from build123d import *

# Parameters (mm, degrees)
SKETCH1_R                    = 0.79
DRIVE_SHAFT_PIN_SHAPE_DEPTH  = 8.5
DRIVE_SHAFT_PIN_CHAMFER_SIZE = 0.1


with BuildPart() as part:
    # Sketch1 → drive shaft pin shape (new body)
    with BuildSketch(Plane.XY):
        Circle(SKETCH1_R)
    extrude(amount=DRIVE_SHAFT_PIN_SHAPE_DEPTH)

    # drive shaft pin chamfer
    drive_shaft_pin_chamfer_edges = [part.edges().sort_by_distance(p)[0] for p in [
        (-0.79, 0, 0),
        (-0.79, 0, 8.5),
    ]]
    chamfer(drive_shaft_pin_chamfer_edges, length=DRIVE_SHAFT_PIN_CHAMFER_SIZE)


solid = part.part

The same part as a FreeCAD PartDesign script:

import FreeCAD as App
import Part
import Sketcher


def edges_at(feature, points):
    """Names of the edges that pass closest to the given points."""
    edges = feature.Shape.Edges
    near = lambda p: min(range(len(edges)), key=lambda i: edges[i].distToShape(Part.Vertex(*p))[0])
    return sorted({f"Edge{near(p) + 1}" for p in points})

doc = App.newDocument("Part")
body = doc.addObject("PartDesign::Body", "Body")

sketch1 = doc.addObject("Sketcher::SketchObject", "Sketch")
body.addObject(sketch1)
sketch1.AttachmentSupport = (doc.XY_Plane, [""])
sketch1.MapMode = "FlatFace"
sketch1.addGeometry(Part.Circle(App.Vector(0, 0, 0), App.Vector(0, 0, 1), 0.8), False)
sketch1.addConstraint([
    Sketcher.Constraint("Coincident", 0, 3, -1, 1),
    Sketcher.Constraint("Diameter", 0, 1.58),
])
pad1 = doc.addObject("PartDesign::Pad", "Pad")
body.addObject(pad1)
pad1.Profile = sketch1
pad1.Length = 8.5
doc.recompute()

chamfer = doc.addObject("PartDesign::Chamfer", "Chamfer")
body.addObject(chamfer)
chamfer.Base = (pad1, edges_at(pad1, [(-0.79, 0, 0), (-0.79, 0, 8.5)]))
chamfer.Size = 0.1

doc.recompute()
